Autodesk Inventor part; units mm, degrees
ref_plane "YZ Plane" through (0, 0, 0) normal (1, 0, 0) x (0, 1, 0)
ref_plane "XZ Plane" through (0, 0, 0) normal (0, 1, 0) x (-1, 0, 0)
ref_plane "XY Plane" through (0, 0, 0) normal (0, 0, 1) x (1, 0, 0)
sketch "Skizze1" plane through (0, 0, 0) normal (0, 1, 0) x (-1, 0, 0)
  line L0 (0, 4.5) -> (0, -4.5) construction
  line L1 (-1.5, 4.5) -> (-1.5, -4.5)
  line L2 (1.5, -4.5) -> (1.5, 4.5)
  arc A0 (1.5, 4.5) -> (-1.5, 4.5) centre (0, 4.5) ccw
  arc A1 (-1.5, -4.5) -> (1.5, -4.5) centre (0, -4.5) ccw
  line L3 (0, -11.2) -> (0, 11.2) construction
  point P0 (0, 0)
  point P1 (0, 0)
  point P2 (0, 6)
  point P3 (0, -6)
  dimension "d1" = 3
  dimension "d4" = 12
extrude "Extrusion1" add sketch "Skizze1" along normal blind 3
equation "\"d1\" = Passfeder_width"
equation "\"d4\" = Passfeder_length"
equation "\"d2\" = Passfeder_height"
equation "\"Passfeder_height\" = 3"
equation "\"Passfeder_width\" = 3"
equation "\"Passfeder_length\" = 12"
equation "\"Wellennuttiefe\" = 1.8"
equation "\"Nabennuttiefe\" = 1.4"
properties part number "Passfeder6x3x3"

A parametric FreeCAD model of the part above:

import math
import FreeCAD as App
import Part
import Sketcher

V = App.Vector
Q = App.Units.Quantity

doc = App.newDocument("Part")
body = doc.addObject("PartDesign::Body", "Body")

sketch1 = body.newObject("Sketcher::SketchObject", "Sketch")
sketch1.AttachmentSupport = (doc.getObject("XZ_Plane"), [""])
sketch1.MapMode = "FlatFace"
sketch1.addGeometry([
    Part.ArcOfCircle(Part.Circle(V(0, 4.5, 0), V(0, 0, 1), 1.5), math.radians(0), math.radians(180)),
    Part.LineSegment(V(1.5, 4.5, 0), V(1.5, -4.5, 0)),
    Part.ArcOfCircle(Part.Circle(V(0, -4.5, 0), V(0, 0, 1), 1.5), math.radians(180), math.radians(360)),
    Part.LineSegment(V(-1.5, -4.5, 0), V(-1.5, 4.5, 0)),
], False)
sketch1.addConstraint([
    Sketcher.Constraint("Tangent", 0, 1, 1, 1),
    Sketcher.Constraint("Tangent", 1, 2, 2, 2),
    Sketcher.Constraint("Tangent", 2, 1, 3, 1),
    Sketcher.Constraint("Tangent", 3, 2, 0, 2),
    Sketcher.Constraint("Vertical", 1),
    Sketcher.Constraint("Vertical", 3),
    Sketcher.Constraint("Symmetric", 0, 3, 2, 3, -1, 1),
    Sketcher.Constraint("Radius", 0, Q("1.5 mm")),
    Sketcher.Constraint("DistanceY", 1, 2, 1, 1, Q("9 mm")),
])
pad1 = body.newObject("PartDesign::Pad", "Pad")
pad1.Profile = sketch1
pad1.Length = 3
pad1.Reversed = True

doc.recompute()
